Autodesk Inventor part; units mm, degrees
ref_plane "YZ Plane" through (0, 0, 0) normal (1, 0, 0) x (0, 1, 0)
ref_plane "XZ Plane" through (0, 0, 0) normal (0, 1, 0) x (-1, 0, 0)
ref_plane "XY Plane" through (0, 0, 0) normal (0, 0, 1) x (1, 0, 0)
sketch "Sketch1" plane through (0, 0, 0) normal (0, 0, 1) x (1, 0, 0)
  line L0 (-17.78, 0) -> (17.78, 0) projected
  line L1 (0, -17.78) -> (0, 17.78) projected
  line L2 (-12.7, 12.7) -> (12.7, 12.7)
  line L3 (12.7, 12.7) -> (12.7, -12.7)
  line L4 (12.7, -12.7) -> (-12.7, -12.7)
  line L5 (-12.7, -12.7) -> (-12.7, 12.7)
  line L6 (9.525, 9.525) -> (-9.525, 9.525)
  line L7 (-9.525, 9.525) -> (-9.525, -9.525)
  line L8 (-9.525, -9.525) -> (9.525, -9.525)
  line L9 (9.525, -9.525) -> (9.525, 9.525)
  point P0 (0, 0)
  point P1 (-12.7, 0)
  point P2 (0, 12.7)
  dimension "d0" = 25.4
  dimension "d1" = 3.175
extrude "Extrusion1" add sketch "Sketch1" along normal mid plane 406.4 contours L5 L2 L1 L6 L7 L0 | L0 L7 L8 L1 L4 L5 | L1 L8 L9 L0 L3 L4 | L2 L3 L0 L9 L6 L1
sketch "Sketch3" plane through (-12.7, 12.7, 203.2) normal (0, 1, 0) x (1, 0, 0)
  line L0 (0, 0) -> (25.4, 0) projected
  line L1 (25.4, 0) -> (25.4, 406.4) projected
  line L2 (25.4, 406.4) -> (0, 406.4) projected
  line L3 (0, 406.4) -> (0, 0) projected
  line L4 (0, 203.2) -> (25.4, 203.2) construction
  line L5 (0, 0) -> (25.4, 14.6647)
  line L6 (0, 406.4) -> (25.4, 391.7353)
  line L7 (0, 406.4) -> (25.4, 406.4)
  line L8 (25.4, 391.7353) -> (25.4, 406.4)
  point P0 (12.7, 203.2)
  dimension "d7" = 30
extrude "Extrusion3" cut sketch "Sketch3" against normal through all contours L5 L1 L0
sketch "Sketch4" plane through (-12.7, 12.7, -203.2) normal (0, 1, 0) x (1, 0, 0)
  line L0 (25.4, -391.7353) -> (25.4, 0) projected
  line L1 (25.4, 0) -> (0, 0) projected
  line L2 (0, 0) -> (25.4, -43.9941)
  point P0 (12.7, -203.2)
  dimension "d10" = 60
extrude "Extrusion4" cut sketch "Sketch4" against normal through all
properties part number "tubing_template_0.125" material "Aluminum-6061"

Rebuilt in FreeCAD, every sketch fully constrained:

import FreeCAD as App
import Part
import Sketcher
from FreeCAD import Vector
Q = App.Units.Quantity


def add_polygon(sketch, points):
    """Adds a closed chain of lines whose ends are joined by coincident constraints."""
    first, n = sketch.GeometryCount, len(points)
    for a, b in zip(points, points[1:] + points[:1]):
        sketch.addGeometry(Part.LineSegment(App.Vector(*a, 0), App.Vector(*b, 0)), False)
    for i in range(n):
        sketch.addConstraint(Sketcher.Constraint("Coincident", first + i, 2, first + (i + 1) % n, 1))

doc = App.newDocument("Part")
body = doc.addObject("PartDesign::Body", "Body")

# Sketch on XY plane
sketch1 = body.newObject("Sketcher::SketchObject", "Sketch")
sketch1.AttachmentSupport = (doc.getObject("XY_Plane"), [""])
sketch1.MapMode = "FlatFace"
add_polygon(sketch1, [(-12.7, 12.7), (-12.7, -12.7), (12.7, -12.7), (12.7, 12.7)])  # lines 0-3
add_polygon(sketch1, [(-9.525, 9.525), (9.525, 9.525), (9.525, -9.525), (-9.525, -9.525)])  # lines 4-7
sketch1.addConstraint(Sketcher.Constraint("Vertical", 0))
sketch1.addConstraint(Sketcher.Constraint("Horizontal", 1))
sketch1.addConstraint(Sketcher.Constraint("Vertical", 2))
sketch1.addConstraint(Sketcher.Constraint("Horizontal", 3))
sketch1.addConstraint(Sketcher.Constraint("Horizontal", 4))
sketch1.addConstraint(Sketcher.Constraint("Vertical", 5))
sketch1.addConstraint(Sketcher.Constraint("Horizontal", 6))
sketch1.addConstraint(Sketcher.Constraint("Vertical", 7))
sketch1.addConstraint(Sketcher.Constraint("Symmetric", 0, 2, 2, 2, -1, 1))
sketch1.addConstraint(Sketcher.Constraint("Symmetric", 4, 2, 6, 2, -1, 1))
sketch1.addConstraint(Sketcher.Constraint("Equal", 3, 0))
sketch1.addConstraint(Sketcher.Constraint("Equal", 6, 5))
sketch1.addConstraint(Sketcher.Constraint("DistanceX", 1, 1, 1, 2, Q("1 in")))
sketch1.addConstraint(Sketcher.Constraint("DistanceX", 4, 2, 2, 2, Q("0.125 in")))
pad1 = body.newObject("PartDesign::Pad", "Pad")
pad1.Profile = sketch1
pad1.Length = Q("16 in")
pad1.Midplane = True

# Sketch on XZ plane
sketch2 = body.newObject("Sketcher::SketchObject", "Sketch001")
sketch2.AttachmentSupport = (doc.getObject("XZ_Plane"), [""])
sketch2.MapMode = "FlatFace"
sketch2.AttachmentOffset = App.Placement(Vector(0, 0, -0.5 * 25.4), App.Rotation())
add_polygon(sketch2, [(12.7, 188.5353), (-12.7, 203.2), (12.7, 203.2)])  # lines 0-2
sketch2.addConstraint(Sketcher.Constraint("Horizontal", 1))
sketch2.addConstraint(Sketcher.Constraint("Vertical", 2))
sketch2.addConstraint(Sketcher.Constraint("DistanceX", 1, 1, 1, 2, Q("1 in")))
sketch2.addConstraint(Sketcher.Constraint("DistanceY", -1, 1, 0, 2, Q("8 in")))
sketch2.addConstraint(Sketcher.Constraint("Angle", 0, Q("150 deg")))
sketch2.addConstraint(Sketcher.Constraint("DistanceX", 0, 2, -1, 1, Q("0.5 in")))
pocket1 = body.newObject("PartDesign::Pocket", "Pocket")
pocket1.Profile = sketch2
pocket1.Type = "ThroughAll"
pocket1.Reversed = True

# Sketch on XZ plane
sketch3 = body.newObject("Sketcher::SketchObject", "Sketch002")
sketch3.AttachmentSupport = (doc.getObject("XZ_Plane"), [""])
sketch3.MapMode = "FlatFace"
sketch3.AttachmentOffset = App.Placement(Vector(0, 0, -0.5 * 25.4), App.Rotation())
add_polygon(sketch3, [(-12.7, -203.2), (12.7, -159.2059), (12.7, -203.2)])  # lines 0-2
sketch3.addConstraint(Sketcher.Constraint("Vertical", 1))
sketch3.addConstraint(Sketcher.Constraint("Horizontal", 2))
sketch3.addConstraint(Sketcher.Constraint("Angle", 0, Q("60 deg")))
sketch3.addConstraint(Sketcher.Constraint("DistanceX", 2, 2, 2, 1, Q("1 in")))
sketch3.addConstraint(Sketcher.Constraint("DistanceY", 1, 2, -1, 1, Q("8 in")))
sketch3.addConstraint(Sketcher.Constraint("DistanceX", -1, 1, 0, 2, Q("0.5 in")))
pocket2 = body.newObject("PartDesign::Pocket", "Pocket001")
pocket2.Profile = sketch3
pocket2.Type = "ThroughAll"
pocket2.Reversed = True

doc.recompute()
